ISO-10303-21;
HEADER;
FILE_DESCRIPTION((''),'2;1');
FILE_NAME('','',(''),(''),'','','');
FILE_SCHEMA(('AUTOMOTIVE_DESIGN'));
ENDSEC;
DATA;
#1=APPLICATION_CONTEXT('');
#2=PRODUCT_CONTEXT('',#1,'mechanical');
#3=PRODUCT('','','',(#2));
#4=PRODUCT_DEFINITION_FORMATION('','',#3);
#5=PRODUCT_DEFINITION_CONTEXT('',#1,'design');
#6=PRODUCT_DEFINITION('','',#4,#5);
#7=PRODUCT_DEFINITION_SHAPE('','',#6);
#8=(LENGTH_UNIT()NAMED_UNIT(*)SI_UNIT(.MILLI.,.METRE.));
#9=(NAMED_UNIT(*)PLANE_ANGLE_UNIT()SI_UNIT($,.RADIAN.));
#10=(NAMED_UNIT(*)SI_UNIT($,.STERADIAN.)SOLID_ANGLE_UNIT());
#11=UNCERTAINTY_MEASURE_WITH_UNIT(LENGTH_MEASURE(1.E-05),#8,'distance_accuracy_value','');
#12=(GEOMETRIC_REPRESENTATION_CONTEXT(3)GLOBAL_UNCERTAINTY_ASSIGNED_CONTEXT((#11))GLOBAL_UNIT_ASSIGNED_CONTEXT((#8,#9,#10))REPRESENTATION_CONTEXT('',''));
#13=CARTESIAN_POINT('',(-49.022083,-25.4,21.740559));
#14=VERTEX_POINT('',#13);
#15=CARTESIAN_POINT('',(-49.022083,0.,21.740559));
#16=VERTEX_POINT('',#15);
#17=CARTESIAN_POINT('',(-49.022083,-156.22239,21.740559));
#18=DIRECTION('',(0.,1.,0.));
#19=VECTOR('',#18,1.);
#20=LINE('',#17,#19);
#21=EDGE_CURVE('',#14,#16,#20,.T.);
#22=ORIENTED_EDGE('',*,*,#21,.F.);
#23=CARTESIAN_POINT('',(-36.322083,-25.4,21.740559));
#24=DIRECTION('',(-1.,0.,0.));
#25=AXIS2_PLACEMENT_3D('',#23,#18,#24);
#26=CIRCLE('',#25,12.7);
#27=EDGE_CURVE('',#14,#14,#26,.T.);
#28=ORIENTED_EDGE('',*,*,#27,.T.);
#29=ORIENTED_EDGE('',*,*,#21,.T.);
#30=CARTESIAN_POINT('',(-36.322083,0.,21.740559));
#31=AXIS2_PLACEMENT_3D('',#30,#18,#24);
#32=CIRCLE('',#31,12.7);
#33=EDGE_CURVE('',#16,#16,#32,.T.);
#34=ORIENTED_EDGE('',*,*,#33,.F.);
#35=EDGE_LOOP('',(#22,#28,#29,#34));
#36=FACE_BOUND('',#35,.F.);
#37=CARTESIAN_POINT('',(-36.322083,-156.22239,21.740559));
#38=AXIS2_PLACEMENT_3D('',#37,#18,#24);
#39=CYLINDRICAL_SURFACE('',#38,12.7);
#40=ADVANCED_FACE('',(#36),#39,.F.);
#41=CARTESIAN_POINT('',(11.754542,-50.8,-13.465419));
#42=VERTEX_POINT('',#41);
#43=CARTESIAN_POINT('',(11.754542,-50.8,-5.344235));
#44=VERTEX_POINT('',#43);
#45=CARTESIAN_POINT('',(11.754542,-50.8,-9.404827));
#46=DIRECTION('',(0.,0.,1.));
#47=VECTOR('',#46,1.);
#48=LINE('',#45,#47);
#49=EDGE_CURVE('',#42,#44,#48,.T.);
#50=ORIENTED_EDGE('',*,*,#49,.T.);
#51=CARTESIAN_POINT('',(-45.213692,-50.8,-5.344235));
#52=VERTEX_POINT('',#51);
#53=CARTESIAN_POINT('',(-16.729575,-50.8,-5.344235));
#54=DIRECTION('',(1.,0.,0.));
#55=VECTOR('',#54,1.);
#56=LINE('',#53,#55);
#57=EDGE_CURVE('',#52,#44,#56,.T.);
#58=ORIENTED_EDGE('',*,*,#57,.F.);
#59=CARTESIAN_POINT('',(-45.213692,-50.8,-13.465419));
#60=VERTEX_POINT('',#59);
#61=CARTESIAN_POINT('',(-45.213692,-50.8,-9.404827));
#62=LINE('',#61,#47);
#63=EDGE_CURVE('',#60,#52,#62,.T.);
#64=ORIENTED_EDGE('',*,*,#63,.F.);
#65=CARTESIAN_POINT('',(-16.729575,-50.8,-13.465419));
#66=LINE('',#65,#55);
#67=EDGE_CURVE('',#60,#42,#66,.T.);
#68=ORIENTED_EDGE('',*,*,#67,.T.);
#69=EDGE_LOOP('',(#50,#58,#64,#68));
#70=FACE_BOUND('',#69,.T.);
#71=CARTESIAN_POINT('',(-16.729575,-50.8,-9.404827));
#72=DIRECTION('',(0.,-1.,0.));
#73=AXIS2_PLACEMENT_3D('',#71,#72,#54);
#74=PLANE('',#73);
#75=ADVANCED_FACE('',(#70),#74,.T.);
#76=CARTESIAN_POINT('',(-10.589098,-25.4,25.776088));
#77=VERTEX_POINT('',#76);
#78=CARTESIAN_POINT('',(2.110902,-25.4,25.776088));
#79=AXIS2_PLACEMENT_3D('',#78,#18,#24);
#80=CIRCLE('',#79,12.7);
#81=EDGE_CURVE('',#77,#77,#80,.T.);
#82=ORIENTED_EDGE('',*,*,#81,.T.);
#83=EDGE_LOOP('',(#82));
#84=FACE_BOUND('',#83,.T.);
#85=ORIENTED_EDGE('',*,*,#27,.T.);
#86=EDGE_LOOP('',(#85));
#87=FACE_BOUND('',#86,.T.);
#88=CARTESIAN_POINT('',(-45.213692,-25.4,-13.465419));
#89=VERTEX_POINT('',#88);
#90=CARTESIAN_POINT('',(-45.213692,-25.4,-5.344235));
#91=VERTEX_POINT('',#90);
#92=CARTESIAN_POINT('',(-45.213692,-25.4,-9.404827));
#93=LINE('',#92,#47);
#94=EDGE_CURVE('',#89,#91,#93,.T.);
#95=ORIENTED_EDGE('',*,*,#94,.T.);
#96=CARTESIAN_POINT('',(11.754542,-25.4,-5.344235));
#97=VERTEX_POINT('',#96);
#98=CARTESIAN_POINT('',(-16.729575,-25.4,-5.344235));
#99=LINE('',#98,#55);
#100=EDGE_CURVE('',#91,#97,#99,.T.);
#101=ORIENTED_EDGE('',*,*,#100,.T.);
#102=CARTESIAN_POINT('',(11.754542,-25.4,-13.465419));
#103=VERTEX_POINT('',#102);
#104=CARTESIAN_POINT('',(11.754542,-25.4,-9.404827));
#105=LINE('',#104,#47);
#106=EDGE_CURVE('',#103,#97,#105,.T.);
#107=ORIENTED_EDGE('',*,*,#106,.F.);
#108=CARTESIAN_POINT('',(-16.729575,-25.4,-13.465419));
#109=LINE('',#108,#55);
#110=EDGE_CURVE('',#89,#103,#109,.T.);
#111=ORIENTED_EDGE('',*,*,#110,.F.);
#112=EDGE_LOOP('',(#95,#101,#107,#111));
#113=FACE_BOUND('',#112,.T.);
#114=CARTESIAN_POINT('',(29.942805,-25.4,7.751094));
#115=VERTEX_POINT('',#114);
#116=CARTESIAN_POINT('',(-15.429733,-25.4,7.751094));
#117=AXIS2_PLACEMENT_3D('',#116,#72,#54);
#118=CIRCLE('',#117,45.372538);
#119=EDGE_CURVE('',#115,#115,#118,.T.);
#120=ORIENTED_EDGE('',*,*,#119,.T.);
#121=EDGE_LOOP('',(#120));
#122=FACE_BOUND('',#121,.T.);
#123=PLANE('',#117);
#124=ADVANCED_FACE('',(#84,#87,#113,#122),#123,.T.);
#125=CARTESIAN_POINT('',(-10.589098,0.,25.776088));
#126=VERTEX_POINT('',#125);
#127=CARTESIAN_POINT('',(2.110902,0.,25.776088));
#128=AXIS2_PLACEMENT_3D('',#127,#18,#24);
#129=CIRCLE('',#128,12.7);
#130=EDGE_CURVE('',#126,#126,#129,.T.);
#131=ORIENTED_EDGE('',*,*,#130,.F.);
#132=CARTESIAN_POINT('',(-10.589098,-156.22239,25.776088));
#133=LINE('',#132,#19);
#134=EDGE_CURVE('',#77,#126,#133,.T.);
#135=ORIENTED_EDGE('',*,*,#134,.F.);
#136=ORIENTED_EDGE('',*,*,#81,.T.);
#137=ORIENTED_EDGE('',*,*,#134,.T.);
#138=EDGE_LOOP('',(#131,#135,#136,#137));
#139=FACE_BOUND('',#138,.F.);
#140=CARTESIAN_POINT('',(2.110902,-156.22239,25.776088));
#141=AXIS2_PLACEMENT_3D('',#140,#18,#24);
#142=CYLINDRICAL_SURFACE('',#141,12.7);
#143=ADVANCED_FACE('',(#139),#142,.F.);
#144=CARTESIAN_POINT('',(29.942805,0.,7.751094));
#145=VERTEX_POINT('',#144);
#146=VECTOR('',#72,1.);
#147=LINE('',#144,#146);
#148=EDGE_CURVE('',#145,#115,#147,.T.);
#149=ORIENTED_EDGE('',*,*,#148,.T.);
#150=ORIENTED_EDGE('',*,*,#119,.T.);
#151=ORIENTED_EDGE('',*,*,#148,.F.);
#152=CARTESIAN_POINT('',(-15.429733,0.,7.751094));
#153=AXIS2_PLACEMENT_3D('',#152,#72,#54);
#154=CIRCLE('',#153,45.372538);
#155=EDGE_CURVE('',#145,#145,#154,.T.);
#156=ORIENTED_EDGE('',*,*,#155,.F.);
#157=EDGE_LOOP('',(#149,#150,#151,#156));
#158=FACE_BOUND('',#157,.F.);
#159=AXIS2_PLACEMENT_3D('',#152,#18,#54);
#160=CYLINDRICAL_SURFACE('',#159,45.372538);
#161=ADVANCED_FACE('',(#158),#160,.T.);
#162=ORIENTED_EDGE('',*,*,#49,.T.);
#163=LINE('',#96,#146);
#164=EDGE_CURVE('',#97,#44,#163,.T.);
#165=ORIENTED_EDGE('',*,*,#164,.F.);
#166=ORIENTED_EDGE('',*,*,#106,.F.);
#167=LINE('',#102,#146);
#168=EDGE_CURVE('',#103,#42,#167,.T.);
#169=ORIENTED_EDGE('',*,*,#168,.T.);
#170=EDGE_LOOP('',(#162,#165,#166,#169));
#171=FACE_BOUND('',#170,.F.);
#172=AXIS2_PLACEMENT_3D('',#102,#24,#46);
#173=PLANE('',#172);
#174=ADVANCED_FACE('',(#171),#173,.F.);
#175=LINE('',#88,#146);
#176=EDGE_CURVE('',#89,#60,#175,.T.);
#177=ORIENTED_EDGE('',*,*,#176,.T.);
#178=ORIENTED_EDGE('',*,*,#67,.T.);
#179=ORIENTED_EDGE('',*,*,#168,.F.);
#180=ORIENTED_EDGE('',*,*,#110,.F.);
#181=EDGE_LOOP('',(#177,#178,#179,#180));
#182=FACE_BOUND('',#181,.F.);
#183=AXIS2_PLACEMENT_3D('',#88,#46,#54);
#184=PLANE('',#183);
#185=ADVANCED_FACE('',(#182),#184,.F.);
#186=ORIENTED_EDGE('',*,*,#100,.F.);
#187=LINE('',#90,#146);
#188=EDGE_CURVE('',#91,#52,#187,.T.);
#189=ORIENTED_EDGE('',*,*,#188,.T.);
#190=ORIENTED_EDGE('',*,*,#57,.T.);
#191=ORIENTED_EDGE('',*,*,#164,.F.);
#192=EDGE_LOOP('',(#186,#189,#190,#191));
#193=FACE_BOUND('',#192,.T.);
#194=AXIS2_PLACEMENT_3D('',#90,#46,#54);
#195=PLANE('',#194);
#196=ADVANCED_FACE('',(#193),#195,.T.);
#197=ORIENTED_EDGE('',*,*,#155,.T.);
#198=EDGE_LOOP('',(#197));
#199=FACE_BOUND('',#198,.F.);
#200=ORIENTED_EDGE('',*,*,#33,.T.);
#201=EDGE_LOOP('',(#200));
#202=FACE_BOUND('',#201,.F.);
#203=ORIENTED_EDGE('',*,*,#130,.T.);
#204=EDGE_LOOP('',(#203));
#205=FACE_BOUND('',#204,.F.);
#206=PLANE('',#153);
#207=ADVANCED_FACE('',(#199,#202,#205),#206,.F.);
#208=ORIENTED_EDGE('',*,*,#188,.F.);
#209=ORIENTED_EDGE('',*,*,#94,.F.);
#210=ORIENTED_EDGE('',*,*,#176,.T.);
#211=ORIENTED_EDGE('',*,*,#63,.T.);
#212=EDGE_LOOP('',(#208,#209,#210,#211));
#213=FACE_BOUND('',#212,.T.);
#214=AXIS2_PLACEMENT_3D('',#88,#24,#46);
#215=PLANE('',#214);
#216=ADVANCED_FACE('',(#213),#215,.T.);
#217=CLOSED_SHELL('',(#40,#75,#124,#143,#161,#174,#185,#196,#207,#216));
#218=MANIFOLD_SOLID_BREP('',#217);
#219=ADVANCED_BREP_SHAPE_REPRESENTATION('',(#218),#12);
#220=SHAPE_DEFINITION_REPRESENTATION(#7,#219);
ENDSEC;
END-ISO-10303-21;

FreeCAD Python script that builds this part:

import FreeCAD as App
import Part
import Sketcher

V = App.Vector
Q = App.Units.Quantity

doc = App.newDocument("Part")
body = doc.addObject("PartDesign::Body", "Body")

sketch1 = body.newObject("Sketcher::SketchObject", "Sketch")
sketch1.AttachmentSupport = (doc.getObject("XZ_Plane"), [""])
sketch1.MapMode = "FlatFace"
sketch1.addGeometry(Part.Circle(V(-15, 8, 0), V(0, 0, 1), 45), False)
sketch1.addConstraint([
    Sketcher.Constraint("Diameter", 0, Q("90.745076 mm")),
    Sketcher.Constraint("DistanceX", 0, 3, -1, 1, Q("15.429733 mm")),
    Sketcher.Constraint("DistanceY", -1, 1, 0, 3, Q("7.751094 mm")),
])
pad1 = body.newObject("PartDesign::Pad", "Pad")
pad1.Profile = sketch1
pad1.Length = Q("1 in")

sketch2 = body.newObject("Sketcher::SketchObject", "Sketch001")
sketch2.AttachmentSupport = (doc.getObject("XZ_Plane"), [""])
sketch2.MapMode = "FlatFace"
sketch2.AttachmentOffset = App.Placement(V(0, 0, 1 * 25.4), App.Rotation())
sketch2.addGeometry(Part.Circle(V(-36, 22, 0), V(0, 0, 1), 13), False)
sketch2.addConstraint([
    Sketcher.Constraint("Diameter", 0, Q("1 in")),
    Sketcher.Constraint("DistanceY", -1, 1, 0, 3, Q("21.740559 mm")),
    Sketcher.Constraint("DistanceX", 0, 3, -1, 1, Q("36.322083 mm")),
])
doc.recompute()
hole = body.newObject("PartDesign::Hole", "Hole")
hole.Profile = sketch2
hole.ThreadType = "None"
hole.Diameter = Q("1 in")
hole.DepthType = "ThroughAll"

sketch3 = body.newObject("Sketcher::SketchObject", "Sketch002")
sketch3.AttachmentSupport = (doc.getObject("XZ_Plane"), [""])
sketch3.MapMode = "FlatFace"
sketch3.AttachmentOffset = App.Placement(V(0, 0, 1 * 25.4), App.Rotation())
sketch3.addGeometry(Part.Circle(V(2, 26, 0), V(0, 0, 1), 13), False)
sketch3.addConstraint([
    Sketcher.Constraint("Diameter", 0, Q("1 in")),
    Sketcher.Constraint("DistanceX", -1, 1, 0, 3, Q("2.110902 mm")),
    Sketcher.Constraint("DistanceY", -1, 1, 0, 3, Q("25.776088 mm")),
])
doc.recompute()
hole2 = body.newObject("PartDesign::Hole", "Hole001")
hole2.Profile = sketch3
hole2.ThreadType = "None"
hole2.Diameter = Q("1 in")
hole2.DepthType = "ThroughAll"

sketch4 = body.newObject("Sketcher::SketchObject", "Sketch003")
sketch4.AttachmentSupport = (doc.getObject("XZ_Plane"), [""])
sketch4.MapMode = "FlatFace"
sketch4.AttachmentOffset = App.Placement(V(0, 0, 1 * 25.4), App.Rotation())
sketch4.addGeometry([
    Part.LineSegment(V(-45, -5, 0), V(-45, -13, 0)),
    Part.LineSegment(V(-45, -13, 0), V(12, -13, 0)),
    Part.LineSegment(V(12, -13, 0), V(12, -5, 0)),
    Part.LineSegment(V(12, -5, 0), V(-45, -5, 0)),
], False)
sketch4.addConstraint([
    Sketcher.Constraint("Coincident", 0, 2, 1, 1),
    Sketcher.Constraint("Coincident", 1, 2, 2, 1),
    Sketcher.Constraint("Coincident", 2, 2, 3, 1),
    Sketcher.Constraint("Coincident", 3, 2, 0, 1),
    Sketcher.Constraint("Vertical", 0),
    Sketcher.Constraint("Horizontal", 1),
    Sketcher.Constraint("Vertical", 2),
    Sketcher.Constraint("Horizontal", 3),
    Sketcher.Constraint("DistanceX", 1, 1, 1, 2, Q("56.968233 mm")),
    Sketcher.Constraint("DistanceY", 0, 2, 0, 1, Q("8.121184 mm")),
    Sketcher.Constraint("DistanceX", 0, 2, -1, 1, Q("45.213692 mm")),
    Sketcher.Constraint("DistanceY", 0, 2, -1, 1, Q("13.465419 mm")),
])
pad2 = body.newObject("PartDesign::Pad", "Pad001")
pad2.Profile = sketch4
pad2.Length = Q("1 in")

doc.recompute()
